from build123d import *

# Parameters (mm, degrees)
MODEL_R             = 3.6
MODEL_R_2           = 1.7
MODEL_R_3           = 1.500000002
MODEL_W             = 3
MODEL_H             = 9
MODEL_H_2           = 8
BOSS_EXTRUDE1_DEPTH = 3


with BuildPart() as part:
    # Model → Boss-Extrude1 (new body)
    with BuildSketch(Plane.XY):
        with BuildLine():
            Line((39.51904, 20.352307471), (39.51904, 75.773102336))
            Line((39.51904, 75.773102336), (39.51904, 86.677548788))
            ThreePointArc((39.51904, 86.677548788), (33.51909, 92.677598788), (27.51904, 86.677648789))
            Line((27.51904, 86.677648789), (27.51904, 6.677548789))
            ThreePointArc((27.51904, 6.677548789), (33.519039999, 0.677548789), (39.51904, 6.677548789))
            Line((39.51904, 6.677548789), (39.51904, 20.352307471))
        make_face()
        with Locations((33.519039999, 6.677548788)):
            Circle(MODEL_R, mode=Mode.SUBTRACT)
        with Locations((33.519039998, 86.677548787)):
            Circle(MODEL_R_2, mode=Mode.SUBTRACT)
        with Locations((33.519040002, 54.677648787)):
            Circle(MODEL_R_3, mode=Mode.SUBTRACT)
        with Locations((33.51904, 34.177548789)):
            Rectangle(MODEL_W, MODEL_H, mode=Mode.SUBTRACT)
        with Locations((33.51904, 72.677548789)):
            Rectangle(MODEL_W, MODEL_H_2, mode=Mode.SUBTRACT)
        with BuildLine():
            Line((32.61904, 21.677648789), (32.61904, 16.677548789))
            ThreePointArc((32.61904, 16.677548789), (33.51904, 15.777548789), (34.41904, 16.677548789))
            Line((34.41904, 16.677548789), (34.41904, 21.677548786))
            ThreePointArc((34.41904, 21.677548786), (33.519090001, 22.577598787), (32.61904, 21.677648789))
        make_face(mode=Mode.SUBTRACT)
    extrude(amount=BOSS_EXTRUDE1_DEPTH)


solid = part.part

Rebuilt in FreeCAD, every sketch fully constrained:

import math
import FreeCAD as App
import Part
import Sketcher

V = App.Vector
Q = App.Units.Quantity


def add_polygon(sketch, points):
    """Adds a closed chain of lines whose ends are joined by coincident constraints."""
    first, n = sketch.GeometryCount, len(points)
    for a, b in zip(points, points[1:] + points[:1]):
        sketch.addGeometry(Part.LineSegment(App.Vector(*a, 0), App.Vector(*b, 0)), False)
    for i in range(n):
        sketch.addConstraint(Sketcher.Constraint("Coincident", first + i, 2, first + (i + 1) % n, 1))

doc = App.newDocument("Part")
params = doc.addObject("Spreadsheet::Sheet", "Params")
for row, (alias, value) in enumerate([
    ("sketch1_diameter", "3 mm"),
    ("sketch1_radius", "6 mm"),
    ("sketch1_diameter2", "7.2 mm"),
    ("sketch1_diameter3", "3.4 mm"),
    ("sketch1_radius2", "0.9 mm"),
    ("pad1_length", "3 mm"),
], start=1):
    params.set(f"A{row}", alias)
    params.set(f"B{row}", "=" + value)
    params.setAlias(f"B{row}", alias)

body = doc.addObject("PartDesign::Body", "Body")

# Sketch on XY plane
sketch1 = body.newObject("Sketcher::SketchObject", "Sketch")
sketch1.AttachmentSupport = (doc.getObject("XY_Plane"), [""])
sketch1.MapMode = "FlatFace"
sketch1.addGeometry(Part.ArcOfCircle(Part.Circle(V(33.5, 86.7, 0), V(0, 0, 1), 6), math.radians(0), math.radians(180)), False)  # 0
sketch1.addGeometry(Part.LineSegment(V(27.5, 86.7, 0), V(27.5, 6.7, 0)), False)  # 1
sketch1.addGeometry(Part.ArcOfCircle(Part.Circle(V(33.5, 6.7, 0), V(0, 0, 1), 6), math.radians(180), math.radians(360)), False)  # 2
sketch1.addGeometry(Part.LineSegment(V(39.5, 6.7, 0), V(39.5, 86.7, 0)), False)  # 3
sketch1.addGeometry(Part.Circle(V(33.5, 6.7, 0), V(0, 0, 1), 3.6), False)  # 4
sketch1.addGeometry(Part.LineSegment(V(32.6, 16.7, 0), V(32.6, 21.7, 0)), False)  # 5
sketch1.addGeometry(Part.ArcOfCircle(Part.Circle(V(33.5, 21.7, 0), V(0, 0, 1), 0.9), math.radians(0), math.radians(180)), False)  # 6
sketch1.addGeometry(Part.LineSegment(V(34.4, 21.7, 0), V(34.4, 16.7, 0)), False)  # 7
sketch1.addGeometry(Part.ArcOfCircle(Part.Circle(V(33.5, 16.7, 0), V(0, 0, 1), 0.9), math.radians(180), math.radians(360)), False)  # 8
add_polygon(sketch1, [(35, 29.7), (32, 29.7), (32, 38.7), (35, 38.7)])  # lines 9-12
sketch1.addGeometry(Part.Circle(V(33.5, 86.7, 0), V(0, 0, 1), 1.7), False)  # 13
sketch1.addGeometry(Part.Circle(V(33.5, 54.7, 0), V(0, 0, 1), 1.5), False)  # 14
add_polygon(sketch1, [(35, 68.7), (32, 68.7), (32, 76.7), (35, 76.7)])  # lines 15-18
sketch1.addConstraint(Sketcher.Constraint("Coincident", 0, 2, 1, 1))
sketch1.addConstraint(Sketcher.Constraint("Tangent", 1, 2, 2, 1))
sketch1.addConstraint(Sketcher.Constraint("Tangent", 2, 2, 3, 1))
sketch1.addConstraint(Sketcher.Constraint("Coincident", 3, 2, 0, 1))
sketch1.addConstraint(Sketcher.Constraint("Coincident", 5, 2, 6, 2))
sketch1.addConstraint(Sketcher.Constraint("Coincident", 6, 1, 7, 1))
sketch1.addConstraint(Sketcher.Constraint("Tangent", 7, 2, 8, 2))
sketch1.addConstraint(Sketcher.Constraint("Tangent", 8, 1, 5, 1))
sketch1.addConstraint(Sketcher.Constraint("Vertical", 1))
sketch1.addConstraint(Sketcher.Constraint("Vertical", 3))
sketch1.addConstraint(Sketcher.Constraint("Vertical", 5))
sketch1.addConstraint(Sketcher.Constraint("Vertical", 7))
sketch1.addConstraint(Sketcher.Constraint("Horizontal", 9))
sketch1.addConstraint(Sketcher.Constraint("Vertical", 10))
sketch1.addConstraint(Sketcher.Constraint("Horizontal", 11))
sketch1.addConstraint(Sketcher.Constraint("Vertical", 12))
sketch1.addConstraint(Sketcher.Constraint("Horizontal", 15))
sketch1.addConstraint(Sketcher.Constraint("Vertical", 16))
sketch1.addConstraint(Sketcher.Constraint("Horizontal", 17))
sketch1.addConstraint(Sketcher.Constraint("Vertical", 18))
sketch1.addConstraint(Sketcher.Constraint("Coincident", 4, 3, 2, 3))
sketch1.addConstraint(Sketcher.Constraint("Horizontal", 13, 3, 3, 2))
sketch1.addConstraint(Sketcher.Constraint("Vertical", 4, 3, 6, 3))
sketch1.addConstraint(Sketcher.Constraint("Vertical", 8, 3, 13, 3))
sketch1.addConstraint(Sketcher.Constraint("Vertical", 13, 3, 14, 3))
sketch1.addConstraint(Sketcher.Constraint("Vertical", 10, 2, 15, 2))
sketch1.addConstraint(Sketcher.Constraint("Vertical", 12, 2, 17, 2))
sketch1.addConstraint(Sketcher.Constraint("Diameter", 14, Q("3 mm")))
sketch1.addConstraint(Sketcher.Constraint("Radius", 0, Q("6 mm")))
sketch1.addConstraint(Sketcher.Constraint("Diameter", 4, Q("7.2 mm")))
sketch1.addConstraint(Sketcher.Constraint("Diameter", 13, Q("3.4 mm")))
sketch1.addConstraint(Sketcher.Constraint("Radius", 6, Q("0.9 mm")))
sketch1.addConstraint(Sketcher.Constraint("DistanceX", 9, 2, 9, 1, Q("3 mm")))
sketch1.addConstraint(Sketcher.Constraint("DistanceY", 3, 1, 3, 2, Q("80 mm")))
sketch1.addConstraint(Sketcher.Constraint("DistanceY", 7, 2, 7, 1, Q("5 mm")))
sketch1.addConstraint(Sketcher.Constraint("DistanceY", 10, 1, 10, 2, Q("9 mm")))
sketch1.addConstraint(Sketcher.Constraint("DistanceY", 16, 1, 16, 2, Q("8 mm")))
sketch1.addConstraint(Sketcher.Constraint("DistanceY", 6, 3, 0, 3, Q("65 mm")))
sketch1.addConstraint(Sketcher.Constraint("DistanceY", 2, 3, 8, 3, Q("10 mm")))
sketch1.addConstraint(Sketcher.Constraint("DistanceY", 14, 3, 0, 2, Q("32 mm")))
sketch1.addConstraint(Sketcher.Constraint("DistanceY", 6, 1, 9, 2, Q("8 mm")))
sketch1.addConstraint(Sketcher.Constraint("DistanceY", 15, 2, 13, 3, Q("18 mm")))
sketch1.addConstraint(Sketcher.Constraint("DistanceX", 9, 2, 5, 2, Q("0.6 mm")))
sketch1.addConstraint(Sketcher.Constraint("DistanceY", 1, 2, 1, 1, Q("80.0001 mm")))
sketch1.addConstraint(Sketcher.Constraint("DistanceY", 5, 1, 5, 2, Q("5.0001 mm")))
sketch1.addConstraint(Sketcher.Constraint("DistanceY", -1, 1, 0, 3, Q("86.677599 mm")))
sketch1.addConstraint(Sketcher.Constraint("DistanceX", -1, 1, 0, 3, Q("33.51904 mm")))
sketch1.addConstraint(Sketcher.Constraint("DistanceY", -1, 1, 2, 3, Q("6.677549 mm")))
sketch1.setExpression("Constraints[35]", "Params.sketch1_diameter")
sketch1.setExpression("Constraints[36]", "Params.sketch1_radius")
sketch1.setExpression("Constraints[37]", "Params.sketch1_diameter2")
sketch1.setExpression("Constraints[38]", "Params.sketch1_diameter3")
sketch1.setExpression("Constraints[39]", "Params.sketch1_radius2")
pad1 = body.newObject("PartDesign::Pad", "Pad")
pad1.Profile = sketch1
pad1.setExpression("Length", "Params.pad1_length")

doc.recompute()
